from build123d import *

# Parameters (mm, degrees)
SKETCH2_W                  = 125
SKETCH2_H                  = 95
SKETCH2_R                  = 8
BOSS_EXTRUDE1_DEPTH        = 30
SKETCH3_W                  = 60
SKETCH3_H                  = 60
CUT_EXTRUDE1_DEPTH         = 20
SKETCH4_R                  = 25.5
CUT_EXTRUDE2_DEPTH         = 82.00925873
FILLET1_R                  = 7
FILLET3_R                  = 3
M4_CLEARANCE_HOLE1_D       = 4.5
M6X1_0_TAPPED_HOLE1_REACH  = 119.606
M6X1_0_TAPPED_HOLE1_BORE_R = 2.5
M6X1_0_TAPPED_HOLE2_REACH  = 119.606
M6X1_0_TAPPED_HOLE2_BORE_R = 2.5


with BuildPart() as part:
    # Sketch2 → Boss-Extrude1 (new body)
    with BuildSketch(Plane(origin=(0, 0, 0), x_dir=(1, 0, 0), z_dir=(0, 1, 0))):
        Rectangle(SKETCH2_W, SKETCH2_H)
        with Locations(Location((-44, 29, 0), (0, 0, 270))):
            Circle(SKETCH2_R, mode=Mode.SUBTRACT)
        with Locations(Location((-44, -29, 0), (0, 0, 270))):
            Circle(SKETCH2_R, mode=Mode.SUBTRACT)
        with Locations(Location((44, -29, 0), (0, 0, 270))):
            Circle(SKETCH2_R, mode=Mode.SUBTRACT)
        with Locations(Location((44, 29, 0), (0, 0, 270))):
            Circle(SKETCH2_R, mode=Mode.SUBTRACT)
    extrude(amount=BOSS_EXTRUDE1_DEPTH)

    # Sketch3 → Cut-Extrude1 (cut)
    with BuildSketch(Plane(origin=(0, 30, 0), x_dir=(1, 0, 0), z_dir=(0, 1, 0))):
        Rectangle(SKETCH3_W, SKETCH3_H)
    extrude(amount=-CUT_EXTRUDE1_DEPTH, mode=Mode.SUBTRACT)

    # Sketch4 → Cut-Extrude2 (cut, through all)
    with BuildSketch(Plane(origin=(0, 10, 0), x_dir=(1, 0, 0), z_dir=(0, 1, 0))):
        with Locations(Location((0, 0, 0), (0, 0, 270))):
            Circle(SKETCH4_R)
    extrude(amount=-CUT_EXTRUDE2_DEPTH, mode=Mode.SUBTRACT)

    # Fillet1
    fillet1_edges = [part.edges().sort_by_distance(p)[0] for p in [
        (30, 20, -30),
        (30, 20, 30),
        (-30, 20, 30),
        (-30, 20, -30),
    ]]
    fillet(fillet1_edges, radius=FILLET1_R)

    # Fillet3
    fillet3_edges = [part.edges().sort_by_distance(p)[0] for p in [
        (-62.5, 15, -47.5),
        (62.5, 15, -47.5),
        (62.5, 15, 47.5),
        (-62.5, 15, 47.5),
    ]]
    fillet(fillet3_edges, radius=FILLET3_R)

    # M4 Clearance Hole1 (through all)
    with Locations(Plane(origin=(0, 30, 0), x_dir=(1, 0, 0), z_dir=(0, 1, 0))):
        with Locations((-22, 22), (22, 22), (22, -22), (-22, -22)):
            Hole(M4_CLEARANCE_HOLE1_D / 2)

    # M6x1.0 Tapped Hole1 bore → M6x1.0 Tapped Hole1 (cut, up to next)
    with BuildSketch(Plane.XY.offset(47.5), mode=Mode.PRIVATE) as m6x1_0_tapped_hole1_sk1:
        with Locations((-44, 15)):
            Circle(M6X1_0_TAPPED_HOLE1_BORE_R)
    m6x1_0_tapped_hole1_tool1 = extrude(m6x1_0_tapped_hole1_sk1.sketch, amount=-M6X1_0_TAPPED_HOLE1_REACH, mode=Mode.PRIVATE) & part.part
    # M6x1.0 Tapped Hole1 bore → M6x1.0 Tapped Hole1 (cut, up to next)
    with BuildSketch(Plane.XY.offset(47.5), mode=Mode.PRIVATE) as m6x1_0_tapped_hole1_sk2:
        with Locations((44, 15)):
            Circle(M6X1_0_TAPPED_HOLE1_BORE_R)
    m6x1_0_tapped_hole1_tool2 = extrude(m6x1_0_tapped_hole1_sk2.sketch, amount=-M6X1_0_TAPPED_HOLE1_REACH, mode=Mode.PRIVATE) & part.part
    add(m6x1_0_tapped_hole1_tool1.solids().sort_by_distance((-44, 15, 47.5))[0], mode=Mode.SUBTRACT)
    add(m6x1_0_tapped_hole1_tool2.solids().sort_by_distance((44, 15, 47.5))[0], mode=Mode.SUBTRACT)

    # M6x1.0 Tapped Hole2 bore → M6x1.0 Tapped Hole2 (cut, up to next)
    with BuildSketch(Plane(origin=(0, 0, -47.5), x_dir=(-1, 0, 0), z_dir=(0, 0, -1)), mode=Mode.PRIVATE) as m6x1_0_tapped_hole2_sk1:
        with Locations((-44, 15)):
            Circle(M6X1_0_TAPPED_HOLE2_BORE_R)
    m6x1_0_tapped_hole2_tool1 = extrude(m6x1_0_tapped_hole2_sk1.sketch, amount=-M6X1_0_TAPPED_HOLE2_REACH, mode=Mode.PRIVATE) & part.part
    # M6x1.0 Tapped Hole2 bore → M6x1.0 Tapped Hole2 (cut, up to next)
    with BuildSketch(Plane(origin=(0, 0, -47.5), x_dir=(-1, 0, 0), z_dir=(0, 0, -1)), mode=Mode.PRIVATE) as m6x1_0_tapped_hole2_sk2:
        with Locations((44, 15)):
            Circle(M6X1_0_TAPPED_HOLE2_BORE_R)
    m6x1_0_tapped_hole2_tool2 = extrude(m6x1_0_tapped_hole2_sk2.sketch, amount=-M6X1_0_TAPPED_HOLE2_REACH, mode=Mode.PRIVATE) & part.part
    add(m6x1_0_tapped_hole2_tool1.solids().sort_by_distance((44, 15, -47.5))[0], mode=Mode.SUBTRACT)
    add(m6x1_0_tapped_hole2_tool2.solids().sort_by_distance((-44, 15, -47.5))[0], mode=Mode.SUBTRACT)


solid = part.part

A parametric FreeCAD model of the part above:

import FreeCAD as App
import Part
import Sketcher

V = App.Vector
Q = App.Units.Quantity


def edges_at(feature, points):
    """Names of the edges that pass closest to the given points."""
    edges = feature.Shape.Edges
    near = lambda p: min(range(len(edges)), key=lambda i: edges[i].distToShape(Part.Vertex(*p))[0])
    return sorted({f"Edge{near(p) + 1}" for p in points})

doc = App.newDocument("Part")
body = doc.addObject("PartDesign::Body", "Body")

# Sketch on XZ plane
sketch1 = body.newObject("Sketcher::SketchObject", "Sketch")
sketch1.AttachmentSupport = (doc.getObject("XZ_Plane"), [""])
sketch1.MapMode = "FlatFace"
sketch1.addGeometry(Part.LineSegment(V(-62.5, -47.5, 0), V(-62.5, 47.5, 0)), False)
sketch1.addGeometry(Part.LineSegment(V(-62.5, 47.5, 0), V(62.5, 47.5, 0)), False)
sketch1.addGeometry(Part.LineSegment(V(62.5, 47.5, 0), V(62.5, -47.5, 0)), False)
sketch1.addGeometry(Part.LineSegment(V(62.5, -47.5, 0), V(-62.5, -47.5, 0)), False)
sketch1.addGeometry(Part.Circle(V(-44, 29, 0), V(0, 0, 1), 8), False)
sketch1.addGeometry(Part.Circle(V(44, 29, 0), V(0, 0, 1), 8), False)
sketch1.addGeometry(Part.Circle(V(-44, -29, 0), V(0, 0, 1), 8), False)
sketch1.addGeometry(Part.Circle(V(44, -29, 0), V(0, 0, 1), 8), False)
sketch1.addConstraint(Sketcher.Constraint("Coincident", 0, 2, 1, 1))
sketch1.addConstraint(Sketcher.Constraint("Coincident", 1, 2, 2, 1))
sketch1.addConstraint(Sketcher.Constraint("Coincident", 2, 2, 3, 1))
sketch1.addConstraint(Sketcher.Constraint("Coincident", 3, 2, 0, 1))
sketch1.addConstraint(Sketcher.Constraint("Vertical", 0))
sketch1.addConstraint(Sketcher.Constraint("Horizontal", 1))
sketch1.addConstraint(Sketcher.Constraint("Vertical", 2))
sketch1.addConstraint(Sketcher.Constraint("Horizontal", 3))
sketch1.addConstraint(Sketcher.Constraint("Equal", 4, 5))
sketch1.addConstraint(Sketcher.Constraint("Equal", 5, 6))
sketch1.addConstraint(Sketcher.Constraint("Equal", 6, 7))
sketch1.addConstraint(Sketcher.Constraint("Symmetric", 5, 3, 6, 3, -1, 1))
sketch1.addConstraint(Sketcher.Constraint("Symmetric", 4, 3, 7, 3, -1, 1))
sketch1.addConstraint(Sketcher.Constraint("Symmetric", 0, 2, 2, 2, -1, 1))
sketch1.addConstraint(Sketcher.Constraint("Symmetric", 4, 3, 5, 3, -2))
sketch1.addConstraint(Sketcher.Constraint("Diameter", 4, Q("16 mm")))
sketch1.addConstraint(Sketcher.Constraint("DistanceX", 1, 1, 1, 2, Q("125 mm")))
sketch1.addConstraint(Sketcher.Constraint("DistanceY", 0, 1, 0, 2, Q("95 mm")))
sketch1.addConstraint(Sketcher.Constraint("DistanceX", 4, 3, -1, 1, Q("44 mm")))
sketch1.addConstraint(Sketcher.Constraint("DistanceY", -1, 1, 4, 3, Q("29 mm")))
pad1 = body.newObject("PartDesign::Pad", "Pad")
pad1.Profile = sketch1
pad1.Length = 30
pad1.Reversed = True

# Sketch on XZ plane
sketch2 = body.newObject("Sketcher::SketchObject", "Sketch001")
sketch2.AttachmentSupport = (doc.getObject("XZ_Plane"), [""])
sketch2.MapMode = "FlatFace"
sketch2.AttachmentOffset = App.Placement(V(0, 0, -30), App.Rotation())
sketch2.addGeometry(Part.LineSegment(V(-30, -30, 0), V(-30, 30, 0)), False)
sketch2.addGeometry(Part.LineSegment(V(-30, 30, 0), V(30, 30, 0)), False)
sketch2.addGeometry(Part.LineSegment(V(30, 30, 0), V(30, -30, 0)), False)
sketch2.addGeometry(Part.LineSegment(V(30, -30, 0), V(-30, -30, 0)), False)
sketch2.addConstraint(Sketcher.Constraint("Coincident", 0, 2, 1, 1))
sketch2.addConstraint(Sketcher.Constraint("Coincident", 1, 2, 2, 1))
sketch2.addConstraint(Sketcher.Constraint("Coincident", 2, 2, 3, 1))
sketch2.addConstraint(Sketcher.Constraint("Coincident", 3, 2, 0, 1))
sketch2.addConstraint(Sketcher.Constraint("Vertical", 0))
sketch2.addConstraint(Sketcher.Constraint("Horizontal", 1))
sketch2.addConstraint(Sketcher.Constraint("Vertical", 2))
sketch2.addConstraint(Sketcher.Constraint("Horizontal", 3))
sketch2.addConstraint(Sketcher.Constraint("Symmetric", 0, 2, 2, 2, -1, 1))
sketch2.addConstraint(Sketcher.Constraint("Equal", 3, 0))
sketch2.addConstraint(Sketcher.Constraint("DistanceX", 1, 1, 1, 2, Q("60 mm")))
pocket1 = body.newObject("PartDesign::Pocket", "Pocket")
pocket1.Profile = sketch2
pocket1.Length = 20
pocket1.Reversed = True

# Sketch on XZ plane
sketch3 = body.newObject("Sketcher::SketchObject", "Sketch002")
sketch3.AttachmentSupport = (doc.getObject("XZ_Plane"), [""])
sketch3.MapMode = "FlatFace"
sketch3.AttachmentOffset = App.Placement(V(0, 0, -10), App.Rotation())
sketch3.addGeometry(Part.Circle(V(0, 0, 0), V(0, 0, 1), 25.5), False)
sketch3.addConstraint(Sketcher.Constraint("Coincident", 0, 3, -1, 1))
sketch3.addConstraint(Sketcher.Constraint("Diameter", 0, Q("51 mm")))
pocket2 = body.newObject("PartDesign::Pocket", "Pocket001")
pocket2.Profile = sketch3
pocket2.Type = "ThroughAll"
pocket2.Reversed = True
doc.recompute()

fillet = body.newObject("PartDesign::Fillet", "Fillet")
fillet.Base = (pocket2, edges_at(pocket2, [
    (30, 20, -30),
    (30, 20, 30),
    (-30, 20, 30),
    (-30, 20, -30),
]))
fillet.Radius = 7
doc.recompute()

fillet2 = body.newObject("PartDesign::Fillet", "Fillet001")
fillet2.Base = (fillet, edges_at(fillet, [
    (-62.5, 15, -47.5),
    (62.5, 15, -47.5),
    (62.5, 15, 47.5),
    (-62.5, 15, 47.5),
]))
fillet2.Radius = 3

# Sketch on XZ plane
sketch4 = body.newObject("Sketcher::SketchObject", "Sketch003")
sketch4.AttachmentSupport = (doc.getObject("XZ_Plane"), [""])
sketch4.MapMode = "FlatFace"
sketch4.AttachmentOffset = App.Placement(V(0, 0, -30), App.Rotation())
sketch4.addGeometry(Part.Circle(V(-22, -22, 0), V(0, 0, 1), 2.25), False)
sketch4.addGeometry(Part.Circle(V(22, -22, 0), V(0, 0, 1), 2.25), False)
sketch4.addGeometry(Part.Circle(V(22, 22, 0), V(0, 0, 1), 2.25), False)
sketch4.addGeometry(Part.Circle(V(-22, 22, 0), V(0, 0, 1), 2.25), False)
sketch4.addConstraint(Sketcher.Constraint("Equal", 0, 1))
sketch4.addConstraint(Sketcher.Constraint("Equal", 1, 2))
sketch4.addConstraint(Sketcher.Constraint("Equal", 2, 3))
sketch4.addConstraint(Sketcher.Constraint("Symmetric", 0, 3, 2, 3, -1, 1))
sketch4.addConstraint(Sketcher.Constraint("Symmetric", 1, 3, 3, 3, -1, 1))
sketch4.addConstraint(Sketcher.Constraint("Symmetric", 0, 3, 1, 3, -2))
sketch4.addConstraint(Sketcher.Constraint("Diameter", 0, Q("4.5 mm")))
sketch4.addConstraint(Sketcher.Constraint("DistanceX", 0, 3, -1, 1, Q("22 mm")))
sketch4.addConstraint(Sketcher.Constraint("DistanceY", 0, 3, -1, 1, Q("22 mm")))
doc.recompute()
hole = body.newObject("PartDesign::Hole", "Hole")
hole.Profile = sketch4
hole.ThreadType = "None"
hole.Diameter = 4.5
hole.DepthType = "ThroughAll"
hole.Reversed = True

# Sketch on XY plane
sketch5 = body.newObject("Sketcher::SketchObject", "Sketch004")
sketch5.AttachmentSupport = (doc.getObject("XY_Plane"), [""])
sketch5.MapMode = "FlatFace"
sketch5.AttachmentOffset = App.Placement(V(0, 0, 47.5), App.Rotation())
sketch5.addGeometry(Part.Circle(V(-44, 15, 0), V(0, 0, 1), 2.5), False)
sketch5.addConstraint(Sketcher.Constraint("Diameter", 0, Q("5 mm")))
sketch5.addConstraint(Sketcher.Constraint("DistanceX", 0, 3, -1, 1, Q("44 mm")))
sketch5.addConstraint(Sketcher.Constraint("DistanceY", -1, 1, 0, 3, Q("15 mm")))
pocket3 = body.newObject("PartDesign::Pocket", "Pocket002")
pocket3.Profile = sketch5
pocket3.Type = "UpToFirst"

# Sketch on XY plane
sketch6 = body.newObject("Sketcher::SketchObject", "Sketch005")
sketch6.AttachmentSupport = (doc.getObject("XY_Plane"), [""])
sketch6.MapMode = "FlatFace"
sketch6.AttachmentOffset = App.Placement(V(0, 0, 47.5), App.Rotation())
sketch6.addGeometry(Part.Circle(V(44, 15, 0), V(0, 0, 1), 2.5), False)
sketch6.addConstraint(Sketcher.Constraint("Diameter", 0, Q("5 mm")))
sketch6.addConstraint(Sketcher.Constraint("DistanceX", -1, 1, 0, 3, Q("44 mm")))
sketch6.addConstraint(Sketcher.Constraint("DistanceY", -1, 1, 0, 3, Q("15 mm")))
pocket4 = body.newObject("PartDesign::Pocket", "Pocket003")
pocket4.Profile = sketch6
pocket4.Type = "UpToFirst"

# Sketch on XY plane
sketch7 = body.newObject("Sketcher::SketchObject", "Sketch006")
sketch7.AttachmentSupport = (doc.getObject("XY_Plane"), [""])
sketch7.MapMode = "FlatFace"
sketch7.AttachmentOffset = App.Placement(V(0, 0, -47.5), App.Rotation())
sketch7.addGeometry(Part.Circle(V(44, 15, 0), V(0, 0, 1), 2.5), False)
sketch7.addConstraint(Sketcher.Constraint("Diameter", 0, Q("5 mm")))
sketch7.addConstraint(Sketcher.Constraint("DistanceX", -1, 1, 0, 3, Q("44 mm")))
sketch7.addConstraint(Sketcher.Constraint("DistanceY", -1, 1, 0, 3, Q("15 mm")))
pocket5 = body.newObject("PartDesign::Pocket", "Pocket004")
pocket5.Profile = sketch7
pocket5.Length = 10.900658
pocket5.Reversed = True

# Sketch on XY plane
sketch8 = body.newObject("Sketcher::SketchObject", "Sketch007")
sketch8.AttachmentSupport = (doc.getObject("XY_Plane"), [""])
sketch8.MapMode = "FlatFace"
sketch8.AttachmentOffset = App.Placement(V(0, 0, -47.5), App.Rotation())
sketch8.addGeometry(Part.Circle(V(-44, 15, 0), V(0, 0, 1), 2.5), False)
sketch8.addConstraint(Sketcher.Constraint("Diameter", 0, Q("5 mm")))
sketch8.addConstraint(Sketcher.Constraint("DistanceX", 0, 3, -1, 1, Q("44 mm")))
sketch8.addConstraint(Sketcher.Constraint("DistanceY", -1, 1, 0, 3, Q("15 mm")))
pocket6 = body.newObject("PartDesign::Pocket", "Pocket005")
pocket6.Profile = sketch8
pocket6.Length = 10.900658
pocket6.Reversed = True

doc.recompute()
